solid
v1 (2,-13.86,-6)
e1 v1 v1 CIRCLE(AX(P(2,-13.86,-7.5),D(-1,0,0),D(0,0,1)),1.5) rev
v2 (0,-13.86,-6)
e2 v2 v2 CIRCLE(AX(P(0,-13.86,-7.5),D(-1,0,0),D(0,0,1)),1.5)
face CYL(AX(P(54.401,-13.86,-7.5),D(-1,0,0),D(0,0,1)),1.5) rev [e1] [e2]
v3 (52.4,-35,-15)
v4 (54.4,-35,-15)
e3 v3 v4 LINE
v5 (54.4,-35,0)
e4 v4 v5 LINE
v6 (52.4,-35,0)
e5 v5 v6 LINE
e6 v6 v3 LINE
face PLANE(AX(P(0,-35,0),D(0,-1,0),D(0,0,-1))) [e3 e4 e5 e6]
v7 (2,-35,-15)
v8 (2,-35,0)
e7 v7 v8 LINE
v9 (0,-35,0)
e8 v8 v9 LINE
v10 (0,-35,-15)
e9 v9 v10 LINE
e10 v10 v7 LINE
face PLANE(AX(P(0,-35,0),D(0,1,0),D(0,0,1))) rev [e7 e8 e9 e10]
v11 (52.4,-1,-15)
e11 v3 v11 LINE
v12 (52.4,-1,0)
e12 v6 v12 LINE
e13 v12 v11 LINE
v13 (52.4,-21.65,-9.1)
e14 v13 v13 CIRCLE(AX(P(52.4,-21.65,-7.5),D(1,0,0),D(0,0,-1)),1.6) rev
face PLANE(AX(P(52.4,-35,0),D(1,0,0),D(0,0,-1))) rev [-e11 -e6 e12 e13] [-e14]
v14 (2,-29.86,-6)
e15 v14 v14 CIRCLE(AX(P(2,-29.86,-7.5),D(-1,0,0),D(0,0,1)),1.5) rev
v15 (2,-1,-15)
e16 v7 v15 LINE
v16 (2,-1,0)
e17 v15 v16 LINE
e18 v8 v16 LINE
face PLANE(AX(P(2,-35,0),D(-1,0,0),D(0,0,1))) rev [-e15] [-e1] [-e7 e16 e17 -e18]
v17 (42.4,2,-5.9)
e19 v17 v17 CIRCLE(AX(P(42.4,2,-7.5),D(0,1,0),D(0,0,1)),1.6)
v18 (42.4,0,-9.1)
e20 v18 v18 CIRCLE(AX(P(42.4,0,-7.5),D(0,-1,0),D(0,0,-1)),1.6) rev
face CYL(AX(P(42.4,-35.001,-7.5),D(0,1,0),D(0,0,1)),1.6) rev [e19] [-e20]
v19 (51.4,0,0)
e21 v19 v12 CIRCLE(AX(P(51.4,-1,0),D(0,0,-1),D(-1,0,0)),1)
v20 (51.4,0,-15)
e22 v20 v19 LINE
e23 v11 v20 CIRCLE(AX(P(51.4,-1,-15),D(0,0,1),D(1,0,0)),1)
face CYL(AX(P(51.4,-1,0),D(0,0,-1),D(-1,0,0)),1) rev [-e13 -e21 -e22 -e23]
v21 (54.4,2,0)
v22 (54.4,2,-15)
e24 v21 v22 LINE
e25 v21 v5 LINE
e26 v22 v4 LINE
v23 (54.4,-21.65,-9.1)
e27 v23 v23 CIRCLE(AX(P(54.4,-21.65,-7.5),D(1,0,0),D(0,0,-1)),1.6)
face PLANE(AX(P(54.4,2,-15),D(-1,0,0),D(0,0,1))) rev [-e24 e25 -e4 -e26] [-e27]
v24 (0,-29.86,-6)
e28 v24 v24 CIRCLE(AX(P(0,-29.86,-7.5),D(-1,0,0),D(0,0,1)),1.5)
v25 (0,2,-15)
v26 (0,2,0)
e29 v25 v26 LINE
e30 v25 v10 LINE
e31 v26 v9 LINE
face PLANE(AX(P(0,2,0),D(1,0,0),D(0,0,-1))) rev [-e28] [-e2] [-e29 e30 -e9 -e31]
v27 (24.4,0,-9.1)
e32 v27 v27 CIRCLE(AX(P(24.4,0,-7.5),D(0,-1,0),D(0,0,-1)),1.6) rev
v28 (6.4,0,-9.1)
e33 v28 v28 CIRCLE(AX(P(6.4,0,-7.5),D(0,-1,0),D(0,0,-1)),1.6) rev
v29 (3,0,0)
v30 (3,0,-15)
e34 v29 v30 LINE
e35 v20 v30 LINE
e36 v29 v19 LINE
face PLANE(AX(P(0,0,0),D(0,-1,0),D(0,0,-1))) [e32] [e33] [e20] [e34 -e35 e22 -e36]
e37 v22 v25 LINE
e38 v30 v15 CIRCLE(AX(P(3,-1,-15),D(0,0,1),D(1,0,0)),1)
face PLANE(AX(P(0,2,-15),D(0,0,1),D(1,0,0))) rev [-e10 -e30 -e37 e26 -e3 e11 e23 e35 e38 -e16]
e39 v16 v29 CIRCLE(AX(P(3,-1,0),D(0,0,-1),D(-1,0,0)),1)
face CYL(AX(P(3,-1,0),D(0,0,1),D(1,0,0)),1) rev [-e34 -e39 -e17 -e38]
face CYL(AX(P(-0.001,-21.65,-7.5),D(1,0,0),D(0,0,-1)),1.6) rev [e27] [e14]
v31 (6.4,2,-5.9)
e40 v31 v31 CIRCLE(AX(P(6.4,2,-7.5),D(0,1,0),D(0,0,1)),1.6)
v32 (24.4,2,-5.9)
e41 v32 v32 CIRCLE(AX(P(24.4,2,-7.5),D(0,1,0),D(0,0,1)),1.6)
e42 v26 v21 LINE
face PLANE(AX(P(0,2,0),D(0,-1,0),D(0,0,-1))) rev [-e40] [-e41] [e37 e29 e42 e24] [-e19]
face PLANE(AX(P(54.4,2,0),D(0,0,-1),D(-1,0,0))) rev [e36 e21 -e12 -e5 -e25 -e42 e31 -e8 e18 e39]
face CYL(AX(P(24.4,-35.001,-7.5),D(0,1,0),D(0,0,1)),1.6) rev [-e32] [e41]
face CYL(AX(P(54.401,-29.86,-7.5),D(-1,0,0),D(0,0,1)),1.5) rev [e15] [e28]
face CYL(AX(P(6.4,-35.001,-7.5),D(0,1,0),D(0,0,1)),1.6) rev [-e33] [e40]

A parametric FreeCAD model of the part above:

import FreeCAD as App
import Part
import Sketcher

V = App.Vector
Q = App.Units.Quantity


def edges_at(feature, points):
    """Names of the edges that pass closest to the given points."""
    edges = feature.Shape.Edges
    near = lambda p: min(range(len(edges)), key=lambda i: edges[i].distToShape(Part.Vertex(*p))[0])
    return sorted({f"Edge{near(p) + 1}" for p in points})

doc = App.newDocument("Part")
body = doc.addObject("PartDesign::Body", "Body")

# Sketch on XZ plane
sketch1 = body.newObject("Sketcher::SketchObject", "Sketch")
sketch1.AttachmentSupport = (doc.getObject("XZ_Plane"), [""])
sketch1.MapMode = "FlatFace"
sketch1.addGeometry([
    Part.LineSegment(V(0, -15, 0), V(0, 0, 0)),
    Part.LineSegment(V(0, 0, 0), V(54, 0, 0)),
    Part.LineSegment(V(54, 0, 0), V(54, -15, 0)),
    Part.LineSegment(V(54, -15, 0), V(0, -15, 0)),
], False)
sketch1.addConstraint([
    Sketcher.Constraint("Coincident", 0, 2, 1, 1),
    Sketcher.Constraint("Coincident", 1, 2, 2, 1),
    Sketcher.Constraint("Coincident", 2, 2, 3, 1),
    Sketcher.Constraint("Coincident", 3, 2, 0, 1),
    Sketcher.Constraint("Vertical", 0),
    Sketcher.Constraint("Horizontal", 1),
    Sketcher.Constraint("Vertical", 2),
    Sketcher.Constraint("Horizontal", 3),
    Sketcher.Constraint("Coincident", 0, 2, -1, 1),
    Sketcher.Constraint("DistanceY", 0, 1, 0, 2, Q("15 mm")),
    Sketcher.Constraint("DistanceX", 1, 1, 1, 2, Q("54.4 mm")),
])
pad1 = body.newObject("PartDesign::Pad", "Pad")
pad1.Profile = sketch1
pad1.Length = 2
pad1.Reversed = True

# Sketch on XZ plane
sketch2 = body.newObject("Sketcher::SketchObject", "Sketch001")
sketch2.AttachmentSupport = (doc.getObject("XZ_Plane"), [""])
sketch2.MapMode = "FlatFace"
sketch2.addGeometry([
    Part.LineSegment(V(0, 0, 0), V(0, -15, 0)),  # 0
    Part.LineSegment(V(0, -15, 0), V(2, -15, 0)),  # 1
    Part.LineSegment(V(2, -15, 0), V(2, 0, 0)),  # 2
    Part.LineSegment(V(2, 0, 0), V(0, 0, 0)),  # 3
    Part.LineSegment(V(52.4, 0, 0), V(52.4, -15, 0)),  # 4
    Part.LineSegment(V(52.4, -15, 0), V(54.4, -15, 0)),  # 5
    Part.LineSegment(V(54.4, -15, 0), V(54.4, 0, 0)),  # 6
    Part.LineSegment(V(54.4, 0, 0), V(52.4, 0, 0)),  # 7
], False)
sketch2.addConstraint([
    Sketcher.Constraint("Coincident", 0, 2, 1, 1),
    Sketcher.Constraint("Coincident", 1, 2, 2, 1),
    Sketcher.Constraint("Coincident", 2, 2, 3, 1),
    Sketcher.Constraint("Coincident", 3, 2, 0, 1),
    Sketcher.Constraint("Coincident", 4, 2, 5, 1),
    Sketcher.Constraint("Coincident", 5, 2, 6, 1),
    Sketcher.Constraint("Coincident", 6, 2, 7, 1),
    Sketcher.Constraint("Coincident", 7, 2, 4, 1),
    Sketcher.Constraint("Vertical", 0),
    Sketcher.Constraint("Horizontal", 1),
    Sketcher.Constraint("Vertical", 2),
    Sketcher.Constraint("Horizontal", 3),
    Sketcher.Constraint("Vertical", 4),
    Sketcher.Constraint("Horizontal", 5),
    Sketcher.Constraint("Vertical", 6),
    Sketcher.Constraint("Horizontal", 7),
    Sketcher.Constraint("Coincident", 3, 2, -1, 1),
    Sketcher.Constraint("PointOnObject", 6, 2, -1),
    Sketcher.Constraint("Horizontal", 1, 2, 4, 2),
    Sketcher.Constraint("Equal", 3, 5),
    Sketcher.Constraint("DistanceX", 1, 1, 1, 2, Q("2 mm")),
    Sketcher.Constraint("DistanceY", 0, 2, 0, 1, Q("15 mm")),
    Sketcher.Constraint("DistanceX", -1, 1, 4, 2, Q("52.4 mm")),
])
pad2 = body.newObject("PartDesign::Pad", "Pad001")
pad2.Profile = sketch2
pad2.Length = 35
doc.recompute()

fillet = body.newObject("PartDesign::Fillet", "Fillet")
fillet.Base = (pad2, edges_at(pad2, [(52.4, 0, -7.5), (2, 0, -7.5)]))
fillet.Radius = 1

# Sketch on YZ plane
sketch3 = body.newObject("Sketcher::SketchObject", "Sketch002")
sketch3.AttachmentSupport = (doc.getObject("YZ_Plane"), [""])
sketch3.MapMode = "FlatFace"
sketch3.AttachmentOffset = App.Placement(V(0, 0, 54.4), App.Rotation())
sketch3.addGeometry(Part.Circle(V(-21.6, -7.5, 0), V(0, 0, 1), 1.6), False)
sketch3.addConstraint([
    Sketcher.Constraint("Diameter", 0, Q("3.2 mm")),
    Sketcher.Constraint("DistanceY", 0, 3, -1, 1, Q("7.5 mm")),
    Sketcher.Constraint("DistanceX", 0, 3, -1, 1, Q("21.65 mm")),
])
pocket1 = body.newObject("PartDesign::Pocket", "Pocket")
pocket1.Profile = sketch3
pocket1.Type = "UpToFirst"

# Sketch on XZ plane
sketch4 = body.newObject("Sketcher::SketchObject", "Sketch003")
sketch4.AttachmentSupport = (doc.getObject("XZ_Plane"), [""])
sketch4.MapMode = "FlatFace"
sketch4.AttachmentOffset = App.Placement(V(0, 0, -2), App.Rotation())
sketch4.addGeometry(Part.Circle(V(42.4, -7.5, 0), V(0, 0, 1), 1.6), False)
sketch4.addConstraint([
    Sketcher.Constraint("Diameter", 0, Q("3.2 mm")),
    Sketcher.Constraint("DistanceX", -1, 1, 0, 3, Q("42.4 mm")),
    Sketcher.Constraint("DistanceY", 0, 3, -1, 1, Q("7.5 mm")),
])
pocket2 = body.newObject("PartDesign::Pocket", "Pocket001")
pocket2.Profile = sketch4
pocket2.Type = "UpToFirst"
pocket2.Reversed = True

# Sketch on XZ plane
sketch5 = body.newObject("Sketcher::SketchObject", "Sketch004")
sketch5.AttachmentSupport = (doc.getObject("XZ_Plane"), [""])
sketch5.MapMode = "FlatFace"
sketch5.AttachmentOffset = App.Placement(V(0, 0, -2), App.Rotation())
sketch5.addGeometry(Part.Circle(V(6.4, -7.5, 0), V(0, 0, 1), 1.6), False)
sketch5.addConstraint([
    Sketcher.Constraint("Diameter", 0, Q("3.2 mm")),
    Sketcher.Constraint("DistanceX", -1, 1, 0, 3, Q("6.4 mm")),
    Sketcher.Constraint("DistanceY", 0, 3, -1, 1, Q("7.5 mm")),
])
pocket3 = body.newObject("PartDesign::Pocket", "Pocket002")
pocket3.Profile = sketch5
pocket3.Type = "UpToFirst"
pocket3.Reversed = True

# Sketch on XZ plane
sketch6 = body.newObject("Sketcher::SketchObject", "Sketch005")
sketch6.AttachmentSupport = (doc.getObject("XZ_Plane"), [""])
sketch6.MapMode = "FlatFace"
sketch6.AttachmentOffset = App.Placement(V(0, 0, -2), App.Rotation())
sketch6.addGeometry(Part.Circle(V(24.4, -7.5, 0), V(0, 0, 1), 1.6), False)
sketch6.addConstraint([
    Sketcher.Constraint("Diameter", 0, Q("3.2 mm")),
    Sketcher.Constraint("DistanceX", -1, 1, 0, 3, Q("24.4 mm")),
    Sketcher.Constraint("DistanceY", 0, 3, -1, 1, Q("7.5 mm")),
])
pocket4 = body.newObject("PartDesign::Pocket", "Pocket003")
pocket4.Profile = sketch6
pocket4.Type = "UpToFirst"
pocket4.Reversed = True

# Sketch on YZ plane
sketch7 = body.newObject("Sketcher::SketchObject", "Sketch006")
sketch7.AttachmentSupport = (doc.getObject("YZ_Plane"), [""])
sketch7.MapMode = "FlatFace"
sketch7.addGeometry(Part.Circle(V(-13.9, -7.5, 0), V(0, 0, 1), 1.5), False)
sketch7.addConstraint([
    Sketcher.Constraint("Diameter", 0, Q("3 mm")),
    Sketcher.Constraint("DistanceY", 0, 3, -1, 1, Q("7.5 mm")),
    Sketcher.Constraint("DistanceX", 0, 3, -1, 1, Q("13.86 mm")),
])
pocket5 = body.newObject("PartDesign::Pocket", "Pocket004")
pocket5.Profile = sketch7
pocket5.Type = "UpToFirst"
pocket5.Reversed = True

# Sketch on YZ plane
sketch8 = body.newObject("Sketcher::SketchObject", "Sketch007")
sketch8.AttachmentSupport = (doc.getObject("YZ_Plane"), [""])
sketch8.MapMode = "FlatFace"
sketch8.addGeometry(Part.Circle(V(-29.9, -7.5, 0), V(0, 0, 1), 1.5), False)
sketch8.addConstraint([
    Sketcher.Constraint("Diameter", 0, Q("3 mm")),
    Sketcher.Constraint("DistanceY", 0, 3, -1, 1, Q("7.5 mm")),
    Sketcher.Constraint("DistanceX", 0, 3, -1, 1, Q("29.86 mm")),
])
pocket6 = body.newObject("PartDesign::Pocket", "Pocket005")
pocket6.Profile = sketch8
pocket6.Type = "UpToFirst"
pocket6.Reversed = True

doc.recompute()
